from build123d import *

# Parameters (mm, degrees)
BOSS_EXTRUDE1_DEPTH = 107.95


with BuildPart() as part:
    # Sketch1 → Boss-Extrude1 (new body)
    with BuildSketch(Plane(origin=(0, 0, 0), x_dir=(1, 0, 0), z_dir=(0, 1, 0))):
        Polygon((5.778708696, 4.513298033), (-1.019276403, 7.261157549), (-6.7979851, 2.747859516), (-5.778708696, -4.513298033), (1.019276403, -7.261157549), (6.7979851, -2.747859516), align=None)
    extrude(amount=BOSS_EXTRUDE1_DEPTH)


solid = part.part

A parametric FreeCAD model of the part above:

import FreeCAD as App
import Part
import Sketcher
Q = App.Units.Quantity


def add_polygon(sketch, points):
    """Adds a closed chain of lines whose ends are joined by coincident constraints."""
    first, n = sketch.GeometryCount, len(points)
    for a, b in zip(points, points[1:] + points[:1]):
        sketch.addGeometry(Part.LineSegment(App.Vector(*a, 0), App.Vector(*b, 0)), False)
    for i in range(n):
        sketch.addConstraint(Sketcher.Constraint("Coincident", first + i, 2, first + (i + 1) % n, 1))

doc = App.newDocument("Part")
body = doc.addObject("PartDesign::Body", "Body")

# Sketch on XZ plane
sketch1 = body.newObject("Sketcher::SketchObject", "Sketch")
sketch1.AttachmentSupport = (doc.getObject("XZ_Plane"), [""])
sketch1.MapMode = "FlatFace"
add_polygon(sketch1, [(6, -5), (-1, -7), (-7, -3), (-6, 5), (1, 7), (7, 3)])  # lines 0-5
sketch1.addConstraint([
    Sketcher.Constraint("Symmetric", 0, 2, 3, 2, -1, 1),
    Sketcher.Constraint("Symmetric", 1, 2, 4, 2, -1, 1),
    Sketcher.Constraint("Symmetric", 2, 2, 5, 2, -1, 1),
    Sketcher.Constraint("Equal", 0, 1),
    Sketcher.Constraint("Equal", 1, 2),
    Sketcher.Constraint("DistanceY", -1, 1, 2, 2, Q("4.513298 mm")),
    Sketcher.Constraint("DistanceY", 0, 2, 1, 2, Q("4.513298 mm")),
    Sketcher.Constraint("Distance", 0, Q("7.332348 mm")),
    Sketcher.Constraint("DistanceY", 1, 2, -1, 1, Q("2.74786 mm")),
])
pad1 = body.newObject("PartDesign::Pad", "Pad")
pad1.Profile = sketch1
pad1.Length = Q("4.25 in")
pad1.Reversed = True

doc.recompute()
